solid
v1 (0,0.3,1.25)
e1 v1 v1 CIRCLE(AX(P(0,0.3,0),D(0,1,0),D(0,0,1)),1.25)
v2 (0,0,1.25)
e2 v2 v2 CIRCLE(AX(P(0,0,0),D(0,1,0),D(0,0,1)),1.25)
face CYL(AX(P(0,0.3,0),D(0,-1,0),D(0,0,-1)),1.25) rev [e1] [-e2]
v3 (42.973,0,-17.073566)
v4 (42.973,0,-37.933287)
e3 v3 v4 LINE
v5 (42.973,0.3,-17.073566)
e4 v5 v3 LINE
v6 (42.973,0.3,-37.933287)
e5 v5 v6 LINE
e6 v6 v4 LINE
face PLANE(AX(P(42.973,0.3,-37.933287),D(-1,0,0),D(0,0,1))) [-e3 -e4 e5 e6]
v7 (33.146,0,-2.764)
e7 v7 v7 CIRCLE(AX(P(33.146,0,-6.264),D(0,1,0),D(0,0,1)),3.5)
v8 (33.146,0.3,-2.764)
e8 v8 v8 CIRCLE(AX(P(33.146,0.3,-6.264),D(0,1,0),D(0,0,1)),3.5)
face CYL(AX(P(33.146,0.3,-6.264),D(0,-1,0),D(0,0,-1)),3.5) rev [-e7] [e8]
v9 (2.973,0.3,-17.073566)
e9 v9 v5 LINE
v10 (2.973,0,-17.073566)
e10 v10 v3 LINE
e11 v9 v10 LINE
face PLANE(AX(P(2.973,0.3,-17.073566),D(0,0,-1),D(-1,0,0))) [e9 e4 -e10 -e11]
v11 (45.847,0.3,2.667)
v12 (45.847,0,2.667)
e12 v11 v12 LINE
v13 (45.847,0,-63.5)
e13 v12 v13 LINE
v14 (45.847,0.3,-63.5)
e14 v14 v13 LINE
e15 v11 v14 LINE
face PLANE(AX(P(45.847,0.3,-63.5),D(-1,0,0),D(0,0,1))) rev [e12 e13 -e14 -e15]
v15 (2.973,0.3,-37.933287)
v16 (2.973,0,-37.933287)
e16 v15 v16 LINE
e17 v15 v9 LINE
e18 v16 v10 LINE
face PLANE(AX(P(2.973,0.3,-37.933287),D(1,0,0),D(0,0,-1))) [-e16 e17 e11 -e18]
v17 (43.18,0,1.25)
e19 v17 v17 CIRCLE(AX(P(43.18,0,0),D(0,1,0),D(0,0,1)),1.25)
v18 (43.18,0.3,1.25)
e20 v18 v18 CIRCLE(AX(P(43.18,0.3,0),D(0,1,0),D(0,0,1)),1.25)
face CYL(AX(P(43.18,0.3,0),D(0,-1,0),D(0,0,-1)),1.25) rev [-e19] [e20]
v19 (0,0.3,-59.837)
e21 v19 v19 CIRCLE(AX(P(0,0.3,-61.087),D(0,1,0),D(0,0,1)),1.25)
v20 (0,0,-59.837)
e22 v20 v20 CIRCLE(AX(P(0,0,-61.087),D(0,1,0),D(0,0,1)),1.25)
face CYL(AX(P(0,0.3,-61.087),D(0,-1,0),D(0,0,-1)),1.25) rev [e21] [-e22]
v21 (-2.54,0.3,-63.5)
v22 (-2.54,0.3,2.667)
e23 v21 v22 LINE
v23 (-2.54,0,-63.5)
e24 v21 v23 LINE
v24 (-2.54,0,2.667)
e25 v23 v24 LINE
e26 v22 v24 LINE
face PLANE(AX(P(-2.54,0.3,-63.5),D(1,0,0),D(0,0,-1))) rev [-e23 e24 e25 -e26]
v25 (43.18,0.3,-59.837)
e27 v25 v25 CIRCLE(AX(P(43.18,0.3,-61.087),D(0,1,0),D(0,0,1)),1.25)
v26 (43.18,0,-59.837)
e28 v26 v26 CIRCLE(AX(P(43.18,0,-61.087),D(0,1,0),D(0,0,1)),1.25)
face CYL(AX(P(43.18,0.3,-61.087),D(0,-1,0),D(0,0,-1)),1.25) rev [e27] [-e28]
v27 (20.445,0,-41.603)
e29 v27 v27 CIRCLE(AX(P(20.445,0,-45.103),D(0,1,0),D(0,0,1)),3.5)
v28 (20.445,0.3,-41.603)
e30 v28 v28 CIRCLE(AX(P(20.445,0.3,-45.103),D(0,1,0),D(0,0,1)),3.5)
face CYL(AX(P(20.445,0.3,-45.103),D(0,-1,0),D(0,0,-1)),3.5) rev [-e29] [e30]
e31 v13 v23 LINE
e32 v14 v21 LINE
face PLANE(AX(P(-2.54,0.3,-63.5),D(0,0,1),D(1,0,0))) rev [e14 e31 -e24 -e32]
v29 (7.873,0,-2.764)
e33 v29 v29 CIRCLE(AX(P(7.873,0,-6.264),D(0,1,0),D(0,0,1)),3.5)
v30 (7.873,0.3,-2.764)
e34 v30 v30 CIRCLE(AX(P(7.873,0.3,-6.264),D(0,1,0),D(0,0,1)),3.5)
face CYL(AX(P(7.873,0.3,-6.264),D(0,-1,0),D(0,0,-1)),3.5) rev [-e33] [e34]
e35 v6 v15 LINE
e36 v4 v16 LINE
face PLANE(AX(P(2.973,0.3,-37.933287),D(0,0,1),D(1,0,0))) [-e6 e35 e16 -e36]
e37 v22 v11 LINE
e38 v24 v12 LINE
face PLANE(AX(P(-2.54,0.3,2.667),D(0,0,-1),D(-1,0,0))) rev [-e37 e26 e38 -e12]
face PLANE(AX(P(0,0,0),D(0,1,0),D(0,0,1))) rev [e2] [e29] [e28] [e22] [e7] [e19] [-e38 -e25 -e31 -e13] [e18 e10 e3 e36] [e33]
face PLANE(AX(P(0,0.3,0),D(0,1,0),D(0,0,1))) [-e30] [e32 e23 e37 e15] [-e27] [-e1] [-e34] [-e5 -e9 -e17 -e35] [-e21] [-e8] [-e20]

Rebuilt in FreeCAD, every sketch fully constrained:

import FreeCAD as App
import Part
import Sketcher

V = App.Vector
Q = App.Units.Quantity

doc = App.newDocument("Part")
body = doc.addObject("PartDesign::Body", "Body")

# Sketch on XZ plane
sketch1 = doc.addObject("Sketcher::SketchObject", "Sketch")
body.addObject(sketch1)
sketch1.AttachmentSupport = (doc.XZ_Plane, [""])
sketch1.MapMode = "FlatFace"
sketch1.addGeometry(Part.LineSegment(V(-2.5, -63.5, 0), V(-2.5, 2.7, 0)), False)
sketch1.addGeometry(Part.LineSegment(V(-2.5, 2.7, 0), V(45.8, 2.7, 0)), False)
sketch1.addGeometry(Part.LineSegment(V(45.8, 2.7, 0), V(45.8, -63.5, 0)), False)
sketch1.addGeometry(Part.LineSegment(V(45.8, -63.5, 0), V(-2.5, -63.5, 0)), False)
sketch1.addGeometry(Part.Circle(V(0, 0, 0), V(0, 0, 1), 1.2), False)
sketch1.addGeometry(Part.Circle(V(7.9, -6.3, 0), V(0, 0, 1), 3.5), False)
sketch1.addGeometry(Part.Circle(V(33.1, -6.3, 0), V(0, 0, 1), 3.5), False)
sketch1.addGeometry(Part.Circle(V(43.2, 0, 0), V(0, 0, 1), 1.2), False)
sketch1.addGeometry(Part.LineSegment(V(43, -17.1, 0), V(3, -17.1, 0)), False)
sketch1.addGeometry(Part.LineSegment(V(3, -17.1, 0), V(3, -37.9, 0)), False)
sketch1.addGeometry(Part.LineSegment(V(3, -37.9, 0), V(43, -37.9, 0)), False)
sketch1.addGeometry(Part.LineSegment(V(43, -37.9, 0), V(43, -17.1, 0)), False)
sketch1.addGeometry(Part.Circle(V(20.4, -45.1, 0), V(0, 0, 1), 3.5), False)
sketch1.addGeometry(Part.Circle(V(0, -61.1, 0), V(0, 0, 1), 1.2), False)
sketch1.addGeometry(Part.Circle(V(43.2, -61.1, 0), V(0, 0, 1), 1.2), False)
sketch1.addConstraint(Sketcher.Constraint("Coincident", 0, 2, 1, 1))
sketch1.addConstraint(Sketcher.Constraint("Coincident", 1, 2, 2, 1))
sketch1.addConstraint(Sketcher.Constraint("Coincident", 2, 2, 3, 1))
sketch1.addConstraint(Sketcher.Constraint("Coincident", 3, 2, 0, 1))
sketch1.addConstraint(Sketcher.Constraint("Coincident", 8, 2, 9, 1))
sketch1.addConstraint(Sketcher.Constraint("Coincident", 9, 2, 10, 1))
sketch1.addConstraint(Sketcher.Constraint("Coincident", 10, 2, 11, 1))
sketch1.addConstraint(Sketcher.Constraint("Coincident", 11, 2, 8, 1))
sketch1.addConstraint(Sketcher.Constraint("Vertical", 0))
sketch1.addConstraint(Sketcher.Constraint("Horizontal", 1))
sketch1.addConstraint(Sketcher.Constraint("Vertical", 2))
sketch1.addConstraint(Sketcher.Constraint("Horizontal", 3))
sketch1.addConstraint(Sketcher.Constraint("Horizontal", 8))
sketch1.addConstraint(Sketcher.Constraint("Vertical", 9))
sketch1.addConstraint(Sketcher.Constraint("Horizontal", 10))
sketch1.addConstraint(Sketcher.Constraint("Vertical", 11))
sketch1.addConstraint(Sketcher.Constraint("Coincident", 4, 3, -1, 1))
sketch1.addConstraint(Sketcher.Constraint("Equal", 5, 6))
sketch1.addConstraint(Sketcher.Constraint("Equal", 4, 7))
sketch1.addConstraint(Sketcher.Constraint("Equal", 6, 12))
sketch1.addConstraint(Sketcher.Constraint("Equal", 7, 13))
sketch1.addConstraint(Sketcher.Constraint("Equal", 13, 14))
sketch1.addConstraint(Sketcher.Constraint("PointOnObject", 7, 3, -1))
sketch1.addConstraint(Sketcher.Constraint("PointOnObject", 13, 3, -2))
sketch1.addConstraint(Sketcher.Constraint("Horizontal", 5, 3, 6, 3))
sketch1.addConstraint(Sketcher.Constraint("Horizontal", 13, 3, 14, 3))
sketch1.addConstraint(Sketcher.Constraint("Vertical", 7, 3, 14, 3))
sketch1.addConstraint(Sketcher.Constraint("Diameter", 5, Q("7 mm")))
sketch1.addConstraint(Sketcher.Constraint("Diameter", 4, Q("2.5 mm")))
sketch1.addConstraint(Sketcher.Constraint("DistanceX", 8, 2, 8, 1, Q("40 mm")))
sketch1.addConstraint(Sketcher.Constraint("DistanceY", 2, 2, -1, 1, Q("63.5 mm")))
sketch1.addConstraint(Sketcher.Constraint("DistanceX", 8, 2, 5, 3, Q("4.9 mm")))
sketch1.addConstraint(Sketcher.Constraint("DistanceX", 1, 1, 1, 2, Q("48.387 mm")))
sketch1.addConstraint(Sketcher.Constraint("DistanceY", 0, 1, 0, 2, Q("66.167 mm")))
sketch1.addConstraint(Sketcher.Constraint("DistanceX", -1, 1, 7, 3, Q("43.18 mm")))
sketch1.addConstraint(Sketcher.Constraint("DistanceX", 0, 2, -1, 1, Q("2.54 mm")))
sketch1.addConstraint(Sketcher.Constraint("DistanceY", 12, 3, 0, 2, Q("47.77 mm")))
sketch1.addConstraint(Sketcher.Constraint("DistanceX", -1, 1, 5, 3, Q("7.873 mm")))
sketch1.addConstraint(Sketcher.Constraint("DistanceY", 5, 3, -1, 1, Q("6.264 mm")))
sketch1.addConstraint(Sketcher.Constraint("DistanceX", -1, 1, 6, 3, Q("33.146 mm")))
sketch1.addConstraint(Sketcher.Constraint("DistanceX", -1, 1, 12, 3, Q("20.445 mm")))
sketch1.addConstraint(Sketcher.Constraint("DistanceY", 13, 3, -1, 1, Q("61.087 mm")))
sketch1.addConstraint(Sketcher.Constraint("DistanceY", 9, 2, 9, 1, Q("20.859721 mm")))
sketch1.addConstraint(Sketcher.Constraint("DistanceY", 8, 2, -1, 1, Q("17.073566 mm")))
pad1 = doc.addObject("PartDesign::Pad", "Pad")
body.addObject(pad1)
pad1.Profile = sketch1
pad1.Length = 0.3
pad1.Reversed = True

doc.recompute()
